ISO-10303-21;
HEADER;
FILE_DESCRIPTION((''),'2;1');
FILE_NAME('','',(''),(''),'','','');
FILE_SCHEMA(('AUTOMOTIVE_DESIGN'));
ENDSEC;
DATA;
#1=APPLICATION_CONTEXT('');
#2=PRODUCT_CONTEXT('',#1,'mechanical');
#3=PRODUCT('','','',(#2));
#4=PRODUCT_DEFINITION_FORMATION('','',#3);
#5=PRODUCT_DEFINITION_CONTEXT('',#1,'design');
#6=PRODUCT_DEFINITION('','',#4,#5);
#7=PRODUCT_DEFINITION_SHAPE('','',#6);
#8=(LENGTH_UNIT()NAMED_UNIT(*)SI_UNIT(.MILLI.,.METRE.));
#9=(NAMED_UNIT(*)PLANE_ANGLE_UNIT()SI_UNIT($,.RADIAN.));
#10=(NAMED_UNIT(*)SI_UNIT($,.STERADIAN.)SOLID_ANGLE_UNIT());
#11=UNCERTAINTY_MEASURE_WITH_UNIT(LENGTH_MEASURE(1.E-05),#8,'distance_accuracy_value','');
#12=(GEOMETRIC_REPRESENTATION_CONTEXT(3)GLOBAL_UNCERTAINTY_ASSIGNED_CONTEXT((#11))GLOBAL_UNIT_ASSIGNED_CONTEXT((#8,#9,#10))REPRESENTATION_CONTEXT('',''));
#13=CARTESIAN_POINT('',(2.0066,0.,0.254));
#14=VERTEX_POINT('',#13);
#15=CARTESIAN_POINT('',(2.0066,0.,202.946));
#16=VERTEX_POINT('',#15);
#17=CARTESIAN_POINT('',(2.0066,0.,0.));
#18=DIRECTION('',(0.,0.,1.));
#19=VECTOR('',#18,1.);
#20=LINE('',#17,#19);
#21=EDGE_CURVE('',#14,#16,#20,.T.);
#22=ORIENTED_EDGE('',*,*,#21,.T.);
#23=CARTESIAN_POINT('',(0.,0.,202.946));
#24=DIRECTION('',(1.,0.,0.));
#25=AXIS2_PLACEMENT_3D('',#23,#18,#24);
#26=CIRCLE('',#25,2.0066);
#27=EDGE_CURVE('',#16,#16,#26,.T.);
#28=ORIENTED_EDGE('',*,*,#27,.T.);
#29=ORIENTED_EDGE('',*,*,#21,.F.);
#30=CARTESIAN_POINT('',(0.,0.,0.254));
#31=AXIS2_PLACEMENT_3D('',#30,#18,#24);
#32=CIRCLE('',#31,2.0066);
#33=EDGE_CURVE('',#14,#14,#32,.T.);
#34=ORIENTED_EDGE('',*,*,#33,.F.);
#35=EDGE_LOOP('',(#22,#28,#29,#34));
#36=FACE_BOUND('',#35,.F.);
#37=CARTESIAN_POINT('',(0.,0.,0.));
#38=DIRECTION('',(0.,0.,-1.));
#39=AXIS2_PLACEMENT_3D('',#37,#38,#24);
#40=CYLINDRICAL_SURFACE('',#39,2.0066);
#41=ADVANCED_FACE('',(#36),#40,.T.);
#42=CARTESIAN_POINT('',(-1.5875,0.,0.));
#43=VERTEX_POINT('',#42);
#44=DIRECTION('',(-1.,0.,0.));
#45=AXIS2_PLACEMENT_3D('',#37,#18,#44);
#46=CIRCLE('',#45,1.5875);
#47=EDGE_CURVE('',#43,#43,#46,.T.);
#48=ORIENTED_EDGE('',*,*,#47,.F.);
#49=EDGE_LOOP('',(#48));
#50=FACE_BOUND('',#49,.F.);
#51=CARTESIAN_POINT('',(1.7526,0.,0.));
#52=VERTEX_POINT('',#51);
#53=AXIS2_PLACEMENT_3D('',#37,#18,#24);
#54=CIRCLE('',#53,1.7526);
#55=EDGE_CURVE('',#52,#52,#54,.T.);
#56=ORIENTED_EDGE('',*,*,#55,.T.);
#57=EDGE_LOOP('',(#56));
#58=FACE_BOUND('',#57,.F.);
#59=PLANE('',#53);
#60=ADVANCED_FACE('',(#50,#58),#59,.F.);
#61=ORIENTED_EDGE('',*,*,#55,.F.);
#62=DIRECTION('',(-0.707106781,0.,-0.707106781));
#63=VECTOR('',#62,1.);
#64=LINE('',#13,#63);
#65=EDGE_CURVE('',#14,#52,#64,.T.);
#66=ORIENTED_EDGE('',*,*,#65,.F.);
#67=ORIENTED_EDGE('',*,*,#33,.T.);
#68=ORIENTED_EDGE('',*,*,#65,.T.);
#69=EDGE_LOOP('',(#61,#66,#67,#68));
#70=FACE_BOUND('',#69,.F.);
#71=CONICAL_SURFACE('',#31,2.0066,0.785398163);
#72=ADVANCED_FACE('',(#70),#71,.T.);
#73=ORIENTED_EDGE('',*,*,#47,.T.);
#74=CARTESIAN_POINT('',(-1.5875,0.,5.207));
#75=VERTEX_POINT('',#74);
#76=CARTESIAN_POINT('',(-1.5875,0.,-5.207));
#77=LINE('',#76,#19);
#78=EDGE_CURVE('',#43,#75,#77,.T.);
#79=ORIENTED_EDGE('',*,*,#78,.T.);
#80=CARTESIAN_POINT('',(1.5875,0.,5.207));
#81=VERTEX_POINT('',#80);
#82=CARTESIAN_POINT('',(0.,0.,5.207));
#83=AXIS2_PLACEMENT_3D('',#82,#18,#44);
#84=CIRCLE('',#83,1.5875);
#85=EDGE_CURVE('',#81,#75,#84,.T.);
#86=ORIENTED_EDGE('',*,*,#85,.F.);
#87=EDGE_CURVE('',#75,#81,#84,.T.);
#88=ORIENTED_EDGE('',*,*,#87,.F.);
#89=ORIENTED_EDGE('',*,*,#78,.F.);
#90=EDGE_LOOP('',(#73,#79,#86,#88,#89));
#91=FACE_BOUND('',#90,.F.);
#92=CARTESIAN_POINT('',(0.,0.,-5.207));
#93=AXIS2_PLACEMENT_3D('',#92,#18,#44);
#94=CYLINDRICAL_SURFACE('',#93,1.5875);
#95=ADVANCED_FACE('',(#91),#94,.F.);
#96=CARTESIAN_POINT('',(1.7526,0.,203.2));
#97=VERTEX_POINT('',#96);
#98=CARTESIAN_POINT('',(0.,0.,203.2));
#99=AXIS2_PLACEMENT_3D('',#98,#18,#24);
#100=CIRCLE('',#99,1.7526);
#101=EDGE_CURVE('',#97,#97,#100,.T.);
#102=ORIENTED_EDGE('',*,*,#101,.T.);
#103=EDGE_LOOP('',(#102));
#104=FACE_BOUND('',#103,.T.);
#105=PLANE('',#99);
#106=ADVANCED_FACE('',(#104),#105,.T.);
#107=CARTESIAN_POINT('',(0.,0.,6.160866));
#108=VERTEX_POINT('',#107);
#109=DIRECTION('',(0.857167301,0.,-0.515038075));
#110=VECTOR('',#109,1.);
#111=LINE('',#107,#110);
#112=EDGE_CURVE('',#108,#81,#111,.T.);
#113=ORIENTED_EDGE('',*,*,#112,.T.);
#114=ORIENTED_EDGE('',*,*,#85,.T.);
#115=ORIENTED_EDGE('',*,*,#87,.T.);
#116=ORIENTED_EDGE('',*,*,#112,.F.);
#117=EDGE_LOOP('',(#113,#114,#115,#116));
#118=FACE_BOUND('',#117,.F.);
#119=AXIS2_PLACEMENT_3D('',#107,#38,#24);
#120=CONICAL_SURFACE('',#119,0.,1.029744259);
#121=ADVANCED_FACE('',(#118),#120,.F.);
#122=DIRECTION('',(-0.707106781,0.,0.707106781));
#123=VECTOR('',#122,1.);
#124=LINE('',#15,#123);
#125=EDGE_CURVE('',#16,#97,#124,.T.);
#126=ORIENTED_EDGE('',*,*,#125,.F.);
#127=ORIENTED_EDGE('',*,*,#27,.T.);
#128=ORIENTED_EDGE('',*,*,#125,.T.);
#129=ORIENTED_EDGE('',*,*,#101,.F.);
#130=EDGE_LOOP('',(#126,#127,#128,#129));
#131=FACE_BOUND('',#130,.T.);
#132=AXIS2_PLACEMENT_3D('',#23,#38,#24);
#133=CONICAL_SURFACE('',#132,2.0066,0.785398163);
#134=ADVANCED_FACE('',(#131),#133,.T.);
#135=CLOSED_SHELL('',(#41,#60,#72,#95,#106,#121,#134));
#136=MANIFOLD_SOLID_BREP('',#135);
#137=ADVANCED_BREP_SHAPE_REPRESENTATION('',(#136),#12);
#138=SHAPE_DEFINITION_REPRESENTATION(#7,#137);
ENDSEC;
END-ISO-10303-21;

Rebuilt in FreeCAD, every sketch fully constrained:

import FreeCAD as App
import Part
import Sketcher
Q = App.Units.Quantity


def edges_at(feature, points):
    """Names of the edges that pass closest to the given points."""
    edges = feature.Shape.Edges
    near = lambda p: min(range(len(edges)), key=lambda i: edges[i].distToShape(Part.Vertex(*p))[0])
    return sorted({f"Edge{near(p) + 1}" for p in points})

doc = App.newDocument("Part")
body = doc.addObject("PartDesign::Body", "Body")

sketch1 = body.newObject("Sketcher::SketchObject", "Sketch")
sketch1.AttachmentSupport = (doc.getObject("XY_Plane"), [""])
sketch1.MapMode = "FlatFace"
sketch1.addGeometry(Part.Circle(App.Vector(0, 0, 0), App.Vector(0, 0, 1), 2), False)
sketch1.addConstraint([
    Sketcher.Constraint("Coincident", 0, 3, -1, 1),
    Sketcher.Constraint("Diameter", 0, Q("0.158 in")),
])
pad1 = body.newObject("PartDesign::Pad", "Pad")
pad1.Profile = sketch1
pad1.Length = Q("8 in")
doc.recompute()

chamfer = body.newObject("PartDesign::Chamfer", "Chamfer")
chamfer.Base = (pad1, edges_at(pad1, [(-2.007, 0, 0), (-2.007, 0, 203.2)]))
chamfer.Size = Q("0.01 in")

sketch2 = body.newObject("Sketcher::SketchObject", "Sketch001")
sketch2.AttachmentSupport = (doc.getObject("XY_Plane"), [""])
sketch2.MapMode = "FlatFace"
sketch2.addGeometry(Part.Circle(App.Vector(0, 0, 0), App.Vector(0, 0, 1), 1.6), False)
sketch2.addConstraint([
    Sketcher.Constraint("Coincident", 0, 3, -1, 1),
    Sketcher.Constraint("Diameter", 0, Q("0.125 in")),
])
doc.recompute()
hole = body.newObject("PartDesign::Hole", "Hole")
hole.Profile = sketch2
hole.ThreadType = "None"
hole.Diameter = Q("0.125 in")
hole.DepthType = "Dimension"
hole.Depth = Q("0.205 in")
hole.DrillPoint = "Angled"
hole.DrillPointAngle = 118
hole.Reversed = True

doc.recompute()
